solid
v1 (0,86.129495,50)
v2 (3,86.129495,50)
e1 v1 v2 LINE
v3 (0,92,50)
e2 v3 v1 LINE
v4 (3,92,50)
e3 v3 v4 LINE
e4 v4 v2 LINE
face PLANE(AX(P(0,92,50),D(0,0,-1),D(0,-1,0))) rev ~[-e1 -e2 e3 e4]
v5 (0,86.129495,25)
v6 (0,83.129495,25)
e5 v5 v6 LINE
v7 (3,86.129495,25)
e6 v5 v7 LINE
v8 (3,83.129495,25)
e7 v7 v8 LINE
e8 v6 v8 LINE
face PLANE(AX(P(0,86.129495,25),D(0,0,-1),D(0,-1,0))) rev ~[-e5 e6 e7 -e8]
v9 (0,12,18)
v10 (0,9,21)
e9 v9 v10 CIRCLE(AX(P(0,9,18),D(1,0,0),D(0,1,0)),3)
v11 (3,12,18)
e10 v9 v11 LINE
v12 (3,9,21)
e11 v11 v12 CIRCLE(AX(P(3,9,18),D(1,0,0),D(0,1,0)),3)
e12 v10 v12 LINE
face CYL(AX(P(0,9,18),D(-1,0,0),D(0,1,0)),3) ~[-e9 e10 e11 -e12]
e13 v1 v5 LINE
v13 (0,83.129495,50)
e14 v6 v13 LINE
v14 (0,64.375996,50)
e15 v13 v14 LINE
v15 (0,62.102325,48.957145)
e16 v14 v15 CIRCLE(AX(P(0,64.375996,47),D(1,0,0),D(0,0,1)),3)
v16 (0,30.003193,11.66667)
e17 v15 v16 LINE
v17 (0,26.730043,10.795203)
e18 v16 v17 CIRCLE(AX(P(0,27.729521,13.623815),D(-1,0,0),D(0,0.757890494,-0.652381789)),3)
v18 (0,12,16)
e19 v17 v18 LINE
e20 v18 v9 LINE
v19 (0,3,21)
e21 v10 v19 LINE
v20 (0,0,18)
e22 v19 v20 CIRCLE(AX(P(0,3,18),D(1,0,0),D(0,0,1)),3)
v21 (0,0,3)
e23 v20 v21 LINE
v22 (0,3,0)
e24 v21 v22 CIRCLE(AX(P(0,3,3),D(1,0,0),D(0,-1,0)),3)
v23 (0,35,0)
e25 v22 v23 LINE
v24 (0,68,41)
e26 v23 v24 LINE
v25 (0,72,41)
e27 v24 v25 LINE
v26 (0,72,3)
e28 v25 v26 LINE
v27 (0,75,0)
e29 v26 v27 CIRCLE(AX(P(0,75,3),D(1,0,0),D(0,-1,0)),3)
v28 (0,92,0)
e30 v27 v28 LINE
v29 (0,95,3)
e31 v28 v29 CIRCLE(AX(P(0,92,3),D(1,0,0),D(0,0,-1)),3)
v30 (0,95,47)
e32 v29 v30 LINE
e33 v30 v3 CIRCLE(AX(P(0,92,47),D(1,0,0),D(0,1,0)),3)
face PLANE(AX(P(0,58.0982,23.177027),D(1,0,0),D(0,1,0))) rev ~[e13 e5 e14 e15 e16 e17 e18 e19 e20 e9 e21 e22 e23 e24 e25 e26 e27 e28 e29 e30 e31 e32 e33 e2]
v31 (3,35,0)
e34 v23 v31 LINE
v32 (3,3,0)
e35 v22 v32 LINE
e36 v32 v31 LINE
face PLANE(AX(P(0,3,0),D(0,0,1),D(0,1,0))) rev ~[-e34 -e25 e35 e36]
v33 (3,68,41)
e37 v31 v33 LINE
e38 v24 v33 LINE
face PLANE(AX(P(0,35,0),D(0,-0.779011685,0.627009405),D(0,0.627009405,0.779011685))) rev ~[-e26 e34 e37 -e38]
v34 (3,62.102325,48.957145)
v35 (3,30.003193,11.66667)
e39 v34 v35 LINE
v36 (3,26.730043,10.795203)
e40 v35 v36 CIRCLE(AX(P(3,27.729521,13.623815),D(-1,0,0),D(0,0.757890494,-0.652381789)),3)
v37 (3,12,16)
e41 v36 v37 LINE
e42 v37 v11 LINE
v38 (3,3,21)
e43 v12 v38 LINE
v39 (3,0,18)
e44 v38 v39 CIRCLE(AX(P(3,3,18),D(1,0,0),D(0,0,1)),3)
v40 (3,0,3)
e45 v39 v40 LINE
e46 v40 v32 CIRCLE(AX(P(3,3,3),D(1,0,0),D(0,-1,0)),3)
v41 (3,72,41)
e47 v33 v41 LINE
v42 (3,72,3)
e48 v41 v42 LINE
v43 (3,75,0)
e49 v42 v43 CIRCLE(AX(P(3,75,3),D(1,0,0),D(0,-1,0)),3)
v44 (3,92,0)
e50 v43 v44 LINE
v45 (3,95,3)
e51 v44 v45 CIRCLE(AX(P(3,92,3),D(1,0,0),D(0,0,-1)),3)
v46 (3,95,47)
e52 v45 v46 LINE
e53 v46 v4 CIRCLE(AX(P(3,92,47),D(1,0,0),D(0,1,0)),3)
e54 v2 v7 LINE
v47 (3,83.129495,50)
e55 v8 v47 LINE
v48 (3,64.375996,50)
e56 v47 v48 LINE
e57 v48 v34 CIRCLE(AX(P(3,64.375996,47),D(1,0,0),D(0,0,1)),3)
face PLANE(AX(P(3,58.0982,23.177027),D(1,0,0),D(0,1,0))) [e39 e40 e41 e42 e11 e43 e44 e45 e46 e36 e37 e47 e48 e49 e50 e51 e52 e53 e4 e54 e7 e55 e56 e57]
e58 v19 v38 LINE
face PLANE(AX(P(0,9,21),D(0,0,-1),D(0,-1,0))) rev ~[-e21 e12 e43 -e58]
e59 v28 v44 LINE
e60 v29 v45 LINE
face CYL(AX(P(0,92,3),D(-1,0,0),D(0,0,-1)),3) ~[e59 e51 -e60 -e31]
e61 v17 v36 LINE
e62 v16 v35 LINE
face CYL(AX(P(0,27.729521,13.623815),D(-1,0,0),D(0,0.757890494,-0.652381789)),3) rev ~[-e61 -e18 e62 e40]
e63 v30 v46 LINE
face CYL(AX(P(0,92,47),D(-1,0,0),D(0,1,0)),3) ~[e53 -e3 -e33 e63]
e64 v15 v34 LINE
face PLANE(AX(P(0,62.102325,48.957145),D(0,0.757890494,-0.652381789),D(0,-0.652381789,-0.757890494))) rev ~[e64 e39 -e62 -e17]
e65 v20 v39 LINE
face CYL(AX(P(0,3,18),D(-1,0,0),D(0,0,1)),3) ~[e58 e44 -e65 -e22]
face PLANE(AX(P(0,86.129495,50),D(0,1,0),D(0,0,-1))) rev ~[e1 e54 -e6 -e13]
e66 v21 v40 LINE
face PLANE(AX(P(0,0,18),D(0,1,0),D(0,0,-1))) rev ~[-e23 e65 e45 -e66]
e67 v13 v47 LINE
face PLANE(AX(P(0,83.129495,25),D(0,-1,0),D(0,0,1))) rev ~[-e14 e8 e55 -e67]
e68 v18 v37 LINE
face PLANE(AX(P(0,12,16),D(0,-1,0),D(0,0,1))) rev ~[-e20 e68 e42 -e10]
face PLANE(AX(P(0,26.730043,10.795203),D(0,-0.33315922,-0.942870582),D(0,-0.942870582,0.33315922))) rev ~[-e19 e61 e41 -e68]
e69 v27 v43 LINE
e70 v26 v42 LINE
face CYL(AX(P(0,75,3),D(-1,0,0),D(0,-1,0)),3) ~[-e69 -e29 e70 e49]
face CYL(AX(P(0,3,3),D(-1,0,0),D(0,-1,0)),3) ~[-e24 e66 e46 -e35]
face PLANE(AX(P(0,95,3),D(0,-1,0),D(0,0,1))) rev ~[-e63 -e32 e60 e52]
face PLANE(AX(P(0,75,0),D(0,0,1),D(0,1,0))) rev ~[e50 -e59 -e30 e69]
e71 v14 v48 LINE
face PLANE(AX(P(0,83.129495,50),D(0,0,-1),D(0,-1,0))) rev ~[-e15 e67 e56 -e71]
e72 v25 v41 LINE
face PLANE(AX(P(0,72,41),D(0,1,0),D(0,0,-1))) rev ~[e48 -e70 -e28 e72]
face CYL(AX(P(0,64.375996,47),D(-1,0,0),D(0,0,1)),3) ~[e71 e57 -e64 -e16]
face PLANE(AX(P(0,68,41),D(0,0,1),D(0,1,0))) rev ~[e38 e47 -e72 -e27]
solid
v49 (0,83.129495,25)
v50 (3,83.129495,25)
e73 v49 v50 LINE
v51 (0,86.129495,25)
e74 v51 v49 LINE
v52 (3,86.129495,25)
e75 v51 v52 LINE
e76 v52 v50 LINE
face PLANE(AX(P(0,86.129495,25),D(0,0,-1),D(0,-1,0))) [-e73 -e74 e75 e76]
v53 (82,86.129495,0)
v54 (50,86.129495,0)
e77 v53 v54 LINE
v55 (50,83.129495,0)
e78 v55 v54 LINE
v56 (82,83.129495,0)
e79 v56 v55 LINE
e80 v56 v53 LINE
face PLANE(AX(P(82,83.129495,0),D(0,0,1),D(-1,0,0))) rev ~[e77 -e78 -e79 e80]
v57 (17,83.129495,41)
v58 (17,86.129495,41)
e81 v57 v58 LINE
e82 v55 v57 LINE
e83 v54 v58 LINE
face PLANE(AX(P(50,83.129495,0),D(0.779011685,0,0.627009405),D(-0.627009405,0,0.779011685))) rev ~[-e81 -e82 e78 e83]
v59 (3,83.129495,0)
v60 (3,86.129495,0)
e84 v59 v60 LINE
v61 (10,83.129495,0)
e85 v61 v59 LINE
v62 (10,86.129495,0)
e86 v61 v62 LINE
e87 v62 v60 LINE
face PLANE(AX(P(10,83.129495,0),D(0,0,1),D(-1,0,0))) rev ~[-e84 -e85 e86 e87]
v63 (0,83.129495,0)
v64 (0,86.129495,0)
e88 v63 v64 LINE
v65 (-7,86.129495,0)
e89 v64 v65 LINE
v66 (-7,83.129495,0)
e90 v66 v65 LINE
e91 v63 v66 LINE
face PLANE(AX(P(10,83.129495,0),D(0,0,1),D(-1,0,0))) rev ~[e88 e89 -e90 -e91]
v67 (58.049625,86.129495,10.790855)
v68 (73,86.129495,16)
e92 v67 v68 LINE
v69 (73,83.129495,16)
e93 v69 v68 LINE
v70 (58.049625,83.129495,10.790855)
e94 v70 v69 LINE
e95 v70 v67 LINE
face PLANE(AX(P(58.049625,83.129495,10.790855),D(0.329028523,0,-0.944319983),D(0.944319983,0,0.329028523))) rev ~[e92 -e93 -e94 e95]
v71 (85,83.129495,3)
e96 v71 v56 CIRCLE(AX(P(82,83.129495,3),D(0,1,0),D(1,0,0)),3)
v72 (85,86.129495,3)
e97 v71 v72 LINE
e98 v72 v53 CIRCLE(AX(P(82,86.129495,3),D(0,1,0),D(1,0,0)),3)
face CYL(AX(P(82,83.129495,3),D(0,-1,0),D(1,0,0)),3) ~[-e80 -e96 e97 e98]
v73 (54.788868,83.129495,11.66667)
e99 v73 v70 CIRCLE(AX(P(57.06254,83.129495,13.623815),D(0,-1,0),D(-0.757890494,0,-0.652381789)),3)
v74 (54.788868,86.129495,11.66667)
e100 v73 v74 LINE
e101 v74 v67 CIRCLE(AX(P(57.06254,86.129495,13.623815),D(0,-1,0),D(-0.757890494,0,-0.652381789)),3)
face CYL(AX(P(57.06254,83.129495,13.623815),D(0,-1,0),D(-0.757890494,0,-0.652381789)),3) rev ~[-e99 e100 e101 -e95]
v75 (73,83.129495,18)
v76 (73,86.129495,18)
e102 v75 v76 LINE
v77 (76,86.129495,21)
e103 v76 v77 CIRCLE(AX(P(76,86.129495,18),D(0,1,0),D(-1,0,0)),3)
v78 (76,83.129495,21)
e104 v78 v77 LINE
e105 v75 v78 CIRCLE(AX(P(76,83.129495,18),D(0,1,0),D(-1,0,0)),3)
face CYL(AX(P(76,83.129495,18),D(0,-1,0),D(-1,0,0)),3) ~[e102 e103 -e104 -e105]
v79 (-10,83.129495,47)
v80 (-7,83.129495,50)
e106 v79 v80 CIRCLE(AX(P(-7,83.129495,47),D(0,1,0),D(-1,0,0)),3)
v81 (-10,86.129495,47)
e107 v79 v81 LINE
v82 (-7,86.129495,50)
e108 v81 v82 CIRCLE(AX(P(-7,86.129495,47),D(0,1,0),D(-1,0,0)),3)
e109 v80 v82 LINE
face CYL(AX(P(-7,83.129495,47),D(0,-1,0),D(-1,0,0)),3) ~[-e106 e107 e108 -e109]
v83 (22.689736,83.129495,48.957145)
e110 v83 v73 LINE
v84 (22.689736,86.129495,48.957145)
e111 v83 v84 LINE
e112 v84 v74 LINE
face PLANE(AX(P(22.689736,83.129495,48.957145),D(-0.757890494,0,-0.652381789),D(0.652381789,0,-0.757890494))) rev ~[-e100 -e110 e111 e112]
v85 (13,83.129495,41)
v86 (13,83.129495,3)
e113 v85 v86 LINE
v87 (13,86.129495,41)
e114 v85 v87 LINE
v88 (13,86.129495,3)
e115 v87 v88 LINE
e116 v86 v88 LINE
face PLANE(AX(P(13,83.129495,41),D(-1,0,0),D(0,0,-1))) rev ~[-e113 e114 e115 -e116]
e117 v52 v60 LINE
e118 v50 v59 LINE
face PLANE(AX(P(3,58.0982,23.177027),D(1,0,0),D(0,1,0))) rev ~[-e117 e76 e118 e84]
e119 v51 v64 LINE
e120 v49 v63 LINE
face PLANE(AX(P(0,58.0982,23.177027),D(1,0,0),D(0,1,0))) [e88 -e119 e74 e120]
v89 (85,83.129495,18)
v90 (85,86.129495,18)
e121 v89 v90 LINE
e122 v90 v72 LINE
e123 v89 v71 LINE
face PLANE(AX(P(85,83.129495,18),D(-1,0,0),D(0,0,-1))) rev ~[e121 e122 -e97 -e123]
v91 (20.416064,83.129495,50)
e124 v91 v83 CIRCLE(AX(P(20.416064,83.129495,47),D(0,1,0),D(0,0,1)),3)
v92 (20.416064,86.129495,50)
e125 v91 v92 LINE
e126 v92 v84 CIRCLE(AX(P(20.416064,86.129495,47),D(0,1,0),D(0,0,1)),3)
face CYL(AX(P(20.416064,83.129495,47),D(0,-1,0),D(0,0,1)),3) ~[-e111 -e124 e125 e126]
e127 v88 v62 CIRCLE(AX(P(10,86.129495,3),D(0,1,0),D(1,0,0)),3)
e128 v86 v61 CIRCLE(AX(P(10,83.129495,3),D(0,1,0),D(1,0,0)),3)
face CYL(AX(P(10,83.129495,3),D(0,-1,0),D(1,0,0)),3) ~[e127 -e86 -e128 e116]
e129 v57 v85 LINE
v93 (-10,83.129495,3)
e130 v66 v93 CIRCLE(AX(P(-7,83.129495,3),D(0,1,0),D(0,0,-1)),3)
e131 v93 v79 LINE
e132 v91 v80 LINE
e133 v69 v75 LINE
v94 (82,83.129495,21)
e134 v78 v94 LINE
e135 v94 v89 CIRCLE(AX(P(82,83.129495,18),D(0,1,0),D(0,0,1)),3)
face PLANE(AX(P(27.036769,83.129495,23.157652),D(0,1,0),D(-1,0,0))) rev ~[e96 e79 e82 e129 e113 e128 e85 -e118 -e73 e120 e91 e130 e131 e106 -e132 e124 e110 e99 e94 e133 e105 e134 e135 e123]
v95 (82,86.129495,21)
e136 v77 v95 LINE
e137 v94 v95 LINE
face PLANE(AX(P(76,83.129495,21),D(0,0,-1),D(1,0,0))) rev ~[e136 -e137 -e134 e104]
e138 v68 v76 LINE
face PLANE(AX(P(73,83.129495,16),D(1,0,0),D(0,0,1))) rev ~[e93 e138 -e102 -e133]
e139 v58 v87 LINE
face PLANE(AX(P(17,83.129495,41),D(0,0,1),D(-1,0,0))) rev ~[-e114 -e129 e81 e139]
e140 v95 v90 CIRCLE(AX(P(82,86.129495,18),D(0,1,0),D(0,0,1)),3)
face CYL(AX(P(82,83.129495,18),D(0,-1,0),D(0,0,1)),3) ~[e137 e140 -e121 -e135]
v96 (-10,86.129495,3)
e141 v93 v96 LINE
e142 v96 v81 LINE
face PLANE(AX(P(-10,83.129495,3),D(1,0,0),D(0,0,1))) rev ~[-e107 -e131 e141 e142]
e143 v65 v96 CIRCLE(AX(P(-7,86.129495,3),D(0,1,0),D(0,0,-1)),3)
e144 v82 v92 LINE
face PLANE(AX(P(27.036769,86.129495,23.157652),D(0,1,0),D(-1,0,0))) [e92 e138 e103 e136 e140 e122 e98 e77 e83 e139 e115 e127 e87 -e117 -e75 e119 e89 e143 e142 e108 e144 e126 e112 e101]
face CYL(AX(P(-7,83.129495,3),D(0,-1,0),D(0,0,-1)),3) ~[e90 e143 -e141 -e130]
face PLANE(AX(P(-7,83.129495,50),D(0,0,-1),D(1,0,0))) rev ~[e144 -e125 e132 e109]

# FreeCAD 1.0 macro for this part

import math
import FreeCAD as App
import Part
import Sketcher

V = App.Vector

doc = App.newDocument("Part")
body = doc.addObject("PartDesign::Body", "Body")

sketch1 = body.newObject("Sketcher::SketchObject", "Sketch")
sketch1.AttachmentSupport = (doc.getObject("YZ_Plane"), [""])
sketch1.MapMode = "FlatFace"
sketch1.addGeometry([
    Part.ArcOfCircle(Part.Circle(V(75, 3, 0), V(0, 0, 1), 3), math.radians(180), math.radians(270)),
    Part.LineSegment(V(75, 0, 0), V(92, 0, 0)),
    Part.ArcOfCircle(Part.Circle(V(92, 3, 0), V(0, 0, 1), 3), math.radians(-90), math.radians(0)),
    Part.LineSegment(V(95, 3, 0), V(95, 47, 0)),
    Part.ArcOfCircle(Part.Circle(V(92, 47, 0), V(0, 0, 1), 3), math.radians(0), math.radians(90)),
    Part.LineSegment(V(92, 50, 0), V(86.1, 50, 0)),
    Part.LineSegment(V(86.1, 50, 0), V(86.1, 25, 0)),
    Part.LineSegment(V(86.1, 25, 0), V(83.1, 25, 0)),
    Part.LineSegment(V(83.1, 25, 0), V(83.1, 50, 0)),
    Part.LineSegment(V(83.1, 50, 0), V(64.4, 50, 0)),
    Part.ArcOfCircle(Part.Circle(V(64.4, 47, 0), V(0, 0, 1), 3), math.radians(90), math.radians(139)),
    Part.LineSegment(V(62.1, 49, 0), V(30, 11.7, 0)),
    Part.ArcOfCircle(Part.Circle(V(27.7, 13.6, 0), V(0, 0, 1), 3), math.radians(-109), math.radians(-41)),
    Part.LineSegment(V(26.7, 10.8, 0), V(12, 16, 0)),
    Part.LineSegment(V(12, 16, 0), V(12, 18, 0)),
    Part.ArcOfCircle(Part.Circle(V(9, 18, 0), V(0, 0, 1), 3), math.radians(0), math.radians(90)),
    Part.LineSegment(V(9, 21, 0), V(3, 21, 0)),
    Part.ArcOfCircle(Part.Circle(V(3, 18, 0), V(0, 0, 1), 3), math.radians(90), math.radians(180)),
    Part.LineSegment(V(0, 18, 0), V(0, 3, 0)),
    Part.ArcOfCircle(Part.Circle(V(3, 3, 0), V(0, 0, 1), 3), math.radians(180), math.radians(270)),
    Part.LineSegment(V(3, 0, 0), V(35, 0, 0)),
    Part.LineSegment(V(35, 0, 0), V(68, 41, 0)),
    Part.LineSegment(V(68, 41, 0), V(72, 41, 0)),
    Part.LineSegment(V(72, 41, 0), V(72, 3, 0)),
], False)
sketch1.addConstraint([
    Sketcher.Constraint("Tangent", 0, 2, 1, 1),
    Sketcher.Constraint("Tangent", 1, 2, 2, 1),
    Sketcher.Constraint("Tangent", 2, 2, 3, 1),
    Sketcher.Constraint("Tangent", 3, 2, 4, 1),
    Sketcher.Constraint("Tangent", 4, 2, 5, 1),
    Sketcher.Constraint("Coincident", 5, 2, 6, 1),
    Sketcher.Constraint("Coincident", 6, 2, 7, 1),
    Sketcher.Constraint("Coincident", 7, 2, 8, 1),
    Sketcher.Constraint("Coincident", 8, 2, 9, 1),
    Sketcher.Constraint("Tangent", 9, 2, 10, 1),
    Sketcher.Constraint("Tangent", 10, 2, 11, 1),
    Sketcher.Constraint("Tangent", 11, 2, 12, 2),
    Sketcher.Constraint("Tangent", 12, 1, 13, 1),
    Sketcher.Constraint("Coincident", 13, 2, 14, 1),
    Sketcher.Constraint("Tangent", 14, 2, 15, 1),
    Sketcher.Constraint("Tangent", 15, 2, 16, 1),
    Sketcher.Constraint("Tangent", 16, 2, 17, 1),
    Sketcher.Constraint("Tangent", 17, 2, 18, 1),
    Sketcher.Constraint("Tangent", 18, 2, 19, 1),
    Sketcher.Constraint("Tangent", 19, 2, 20, 1),
    Sketcher.Constraint("Coincident", 20, 2, 21, 1),
    Sketcher.Constraint("Coincident", 21, 2, 22, 1),
    Sketcher.Constraint("Coincident", 22, 2, 23, 1),
    Sketcher.Constraint("Tangent", 23, 2, 0, 1),
    Sketcher.Constraint("Horizontal", 1),
    Sketcher.Constraint("Vertical", 3),
    Sketcher.Constraint("Horizontal", 5),
    Sketcher.Constraint("Vertical", 6),
    Sketcher.Constraint("Horizontal", 7),
    Sketcher.Constraint("Vertical", 8),
    Sketcher.Constraint("Horizontal", 9),
    Sketcher.Constraint("Vertical", 14),
    Sketcher.Constraint("Horizontal", 16),
    Sketcher.Constraint("Vertical", 18),
    Sketcher.Constraint("Horizontal", 20),
    Sketcher.Constraint("Horizontal", 22),
    Sketcher.Constraint("Vertical", 23),
    Sketcher.Constraint("Equal", 0, 2),
    Sketcher.Constraint("Equal", 2, 4),
    Sketcher.Constraint("Equal", 4, 10),
    Sketcher.Constraint("Equal", 10, 12),
    Sketcher.Constraint("Equal", 12, 15),
    Sketcher.Constraint("Equal", 15, 17),
    Sketcher.Constraint("Equal", 17, 19),
    Sketcher.Constraint("PointOnObject", 0, 2, -1),
    Sketcher.Constraint("PointOnObject", 17, 2, -2),
    Sketcher.Constraint("PointOnObject", 19, 2, -1),
    Sketcher.Constraint("Horizontal", 4, 3, 10, 3),
    Sketcher.Constraint("Radius", 0, 3.0),
    Sketcher.Constraint("DistanceX", 1, 1, 1, 2, 17.0),
    Sketcher.Constraint("DistanceX", 7, 2, 7, 1, 3.0),
    Sketcher.Constraint("DistanceX", 16, 2, 16, 1, 6.0),
    Sketcher.Constraint("DistanceX", 20, 1, 20, 2, 32.0),
    Sketcher.Constraint("DistanceX", 22, 1, 22, 2, 4.0),
    Sketcher.Constraint("DistanceY", 3, 1, 3, 2, 44.0),
    Sketcher.Constraint("DistanceY", 6, 2, 6, 1, 25.0),
    Sketcher.Constraint("DistanceY", 14, 1, 14, 2, 2.0),
    Sketcher.Constraint("DistanceY", 18, 2, 18, 1, 15.0),
    Sketcher.Constraint("DistanceY", 23, 2, 23, 1, 38.0),
    Sketcher.Constraint("DistanceX", -1, 1, 0, 3, 75.0),
    Sketcher.Constraint("DistanceX", 9, 2, 9, 1, 18.753499),
    Sketcher.Constraint("Distance", 13, 15.622551),
    Sketcher.Constraint("DistanceX", 5, 2, 5, 1, 5.870505),
    Sketcher.Constraint("DistanceX", -1, 1, 12, 3, 27.729521),
])
pad1 = body.newObject("PartDesign::Pad", "Pad")
pad1.Profile = sketch1
pad1.Length = 3
body2 = doc.addObject("PartDesign::Body", "Body001")

sketch2 = body2.newObject("Sketcher::SketchObject", "Sketch001")
sketch2.AttachmentSupport = (doc.getObject("XZ_Plane001"), [""])
sketch2.MapMode = "FlatFace"
sketch2.AttachmentOffset = App.Placement(V(0, 0, -83.129495), App.Rotation())
sketch2.addGeometry([
    Part.ArcOfCircle(Part.Circle(V(10, 3, 0), V(0, 0, 1), 3), math.radians(-90), math.radians(0)),
    Part.LineSegment(V(10, 0, 0), V(-7, 0, 0)),
    Part.ArcOfCircle(Part.Circle(V(-7, 3, 0), V(0, 0, 1), 3), math.radians(180), math.radians(270)),
    Part.LineSegment(V(-10, 3, 0), V(-10, 47, 0)),
    Part.ArcOfCircle(Part.Circle(V(-7, 47, 0), V(0, 0, 1), 3), math.radians(90), math.radians(180)),
    Part.LineSegment(V(-7, 50, 0), V(20.416064, 50, 0)),
    Part.ArcOfCircle(Part.Circle(V(20.416064, 47, 0), V(0, 0, 1), 3), math.radians(40.72142), math.radians(90)),
    Part.LineSegment(V(22.689736, 48.957145, 0), V(54.788868, 11.66667, 0)),
    Part.ArcOfCircle(Part.Circle(V(57.06254, 13.623815, 0), V(0, 0, 1), 3), math.radians(-139.27858), math.radians(-70.790179)),
    Part.LineSegment(V(58.049625, 10.790855, 0), V(73, 16, 0)),
    Part.LineSegment(V(73, 16, 0), V(73, 18, 0)),
    Part.ArcOfCircle(Part.Circle(V(76, 18, 0), V(0, 0, 1), 3), math.radians(90), math.radians(180)),
    Part.LineSegment(V(76, 21, 0), V(82, 21, 0)),
    Part.ArcOfCircle(Part.Circle(V(82, 18, 0), V(0, 0, 1), 3), math.radians(0), math.radians(90)),
    Part.LineSegment(V(85, 18, 0), V(85, 3, 0)),
    Part.ArcOfCircle(Part.Circle(V(82, 3, 0), V(0, 0, 1), 3), math.radians(-90), math.radians(0)),
    Part.LineSegment(V(82, 0, 0), V(50, 0, 0)),
    Part.LineSegment(V(50, 0, 0), V(17, 41, 0)),
    Part.LineSegment(V(17, 41, 0), V(13, 41, 0)),
    Part.LineSegment(V(13, 41, 0), V(13, 3, 0)),
], False)
sketch2.addConstraint([
    Sketcher.Constraint("Coincident", 0, 1, 1, 1),
    Sketcher.Constraint("Coincident", 1, 2, 2, 2),
    Sketcher.Constraint("Coincident", 2, 1, 3, 1),
    Sketcher.Constraint("Coincident", 3, 2, 4, 2),
    Sketcher.Constraint("Coincident", 4, 1, 5, 1),
    Sketcher.Constraint("Coincident", 5, 2, 6, 2),
    Sketcher.Constraint("Coincident", 6, 1, 7, 1),
    Sketcher.Constraint("Coincident", 7, 2, 8, 1),
    Sketcher.Constraint("Coincident", 8, 2, 9, 1),
    Sketcher.Constraint("Coincident", 9, 2, 10, 1),
    Sketcher.Constraint("Coincident", 10, 2, 11, 2),
    Sketcher.Constraint("Coincident", 11, 1, 12, 1),
    Sketcher.Constraint("Coincident", 12, 2, 13, 2),
    Sketcher.Constraint("Coincident", 13, 1, 14, 1),
    Sketcher.Constraint("Coincident", 14, 2, 15, 2),
    Sketcher.Constraint("Coincident", 15, 1, 16, 1),
    Sketcher.Constraint("Coincident", 16, 2, 17, 1),
    Sketcher.Constraint("Coincident", 17, 2, 18, 1),
    Sketcher.Constraint("Coincident", 18, 2, 19, 1),
    Sketcher.Constraint("Coincident", 19, 2, 0, 2),
    Sketcher.Constraint("Horizontal", 1),
    Sketcher.Constraint("Vertical", 3),
    Sketcher.Constraint("Horizontal", 5),
    Sketcher.Constraint("Vertical", 10),
    Sketcher.Constraint("Horizontal", 12),
    Sketcher.Constraint("Vertical", 14),
    Sketcher.Constraint("Horizontal", 16),
    Sketcher.Constraint("Horizontal", 18),
    Sketcher.Constraint("Vertical", 19),
    Sketcher.Constraint("PointOnObject", 0, 1, -1),
    Sketcher.Constraint("PointOnObject", 15, 1, -1),
    Sketcher.Constraint("Radius", 0, 3.0),
    Sketcher.Constraint("Radius", 2, 3.0),
    Sketcher.Constraint("Radius", 4, 3.0),
    Sketcher.Constraint("Radius", 6, 3.0),
    Sketcher.Constraint("Radius", 8, 3.0),
    Sketcher.Constraint("Radius", 11, 3.0),
    Sketcher.Constraint("Radius", 13, 3.0),
    Sketcher.Constraint("Radius", 15, 3.0),
    Sketcher.Constraint("DistanceX", 1, 2, 1, 1, 17.0),
    Sketcher.Constraint("DistanceX", 12, 1, 12, 2, 6.0),
    Sketcher.Constraint("DistanceX", 16, 2, 16, 1, 32.0),
    Sketcher.Constraint("DistanceX", 18, 2, 18, 1, 4.0),
    Sketcher.Constraint("DistanceY", 3, 1, 3, 2, 44.0),
    Sketcher.Constraint("DistanceY", 10, 1, 10, 2, 2.0),
    Sketcher.Constraint("DistanceY", 14, 2, 14, 1, 15.0),
    Sketcher.Constraint("DistanceY", 19, 2, 19, 1, 38.0),
    Sketcher.Constraint("DistanceX", -1, 1, 0, 3, 10.0),
    Sketcher.Constraint("DistanceX", 2, 3, -1, 1, 7.0),
    Sketcher.Constraint("DistanceY", -1, 1, 4, 3, 47.0),
    Sketcher.Constraint("DistanceX", -1, 1, 11, 3, 76.0),
    Sketcher.Constraint("DistanceY", -1, 1, 11, 3, 18.0),
    Sketcher.Constraint("DistanceX", -1, 1, 13, 3, 82.0),
    Sketcher.Constraint("DistanceX", -1, 1, 0, 1, 10.0),
    Sketcher.Constraint("DistanceY", -1, 1, 2, 1, 3.0),
    Sketcher.Constraint("DistanceX", 4, 1, -1, 1, 7.0),
    Sketcher.Constraint("DistanceY", -1, 1, 9, 2, 16.0),
    Sketcher.Constraint("DistanceX", -1, 1, 11, 1, 76.0),
    Sketcher.Constraint("DistanceY", -1, 1, 13, 1, 18.0),
    Sketcher.Constraint("DistanceX", -1, 1, 15, 1, 82.0),
    Sketcher.Constraint("DistanceY", -1, 1, 17, 2, 41.0),
    Sketcher.Constraint("DistanceX", 5, 1, 5, 2, 27.416064),
    Sketcher.Constraint("DistanceX", -1, 1, 8, 3, 57.06254),
    Sketcher.Constraint("DistanceX", -1, 1, 7, 2, 54.788868),
    Sketcher.Constraint("DistanceY", -1, 1, 7, 2, 11.66667),
    Sketcher.Constraint("DistanceX", 5, 2, 6, 1, 2.273671),
    Sketcher.Constraint("DistanceX", 6, 3, 6, 1, 2.273671),
    Sketcher.Constraint("DistanceY", 8, 2, 8, 3, 2.83296),
])
pad2 = body2.newObject("PartDesign::Pad", "Pad001")
pad2.Profile = sketch2
pad2.Length = 3
pad2.Reversed = True
doc.recompute()

body3 = doc.addObject("PartDesign::Body", "Body002")
body3.BaseFeature = body
boolean = body2.newObject("PartDesign::Boolean", "Boolean")
boolean.Type = "Cut"
boolean.addObjects([body3])
doc.recompute()

doc.recompute()
